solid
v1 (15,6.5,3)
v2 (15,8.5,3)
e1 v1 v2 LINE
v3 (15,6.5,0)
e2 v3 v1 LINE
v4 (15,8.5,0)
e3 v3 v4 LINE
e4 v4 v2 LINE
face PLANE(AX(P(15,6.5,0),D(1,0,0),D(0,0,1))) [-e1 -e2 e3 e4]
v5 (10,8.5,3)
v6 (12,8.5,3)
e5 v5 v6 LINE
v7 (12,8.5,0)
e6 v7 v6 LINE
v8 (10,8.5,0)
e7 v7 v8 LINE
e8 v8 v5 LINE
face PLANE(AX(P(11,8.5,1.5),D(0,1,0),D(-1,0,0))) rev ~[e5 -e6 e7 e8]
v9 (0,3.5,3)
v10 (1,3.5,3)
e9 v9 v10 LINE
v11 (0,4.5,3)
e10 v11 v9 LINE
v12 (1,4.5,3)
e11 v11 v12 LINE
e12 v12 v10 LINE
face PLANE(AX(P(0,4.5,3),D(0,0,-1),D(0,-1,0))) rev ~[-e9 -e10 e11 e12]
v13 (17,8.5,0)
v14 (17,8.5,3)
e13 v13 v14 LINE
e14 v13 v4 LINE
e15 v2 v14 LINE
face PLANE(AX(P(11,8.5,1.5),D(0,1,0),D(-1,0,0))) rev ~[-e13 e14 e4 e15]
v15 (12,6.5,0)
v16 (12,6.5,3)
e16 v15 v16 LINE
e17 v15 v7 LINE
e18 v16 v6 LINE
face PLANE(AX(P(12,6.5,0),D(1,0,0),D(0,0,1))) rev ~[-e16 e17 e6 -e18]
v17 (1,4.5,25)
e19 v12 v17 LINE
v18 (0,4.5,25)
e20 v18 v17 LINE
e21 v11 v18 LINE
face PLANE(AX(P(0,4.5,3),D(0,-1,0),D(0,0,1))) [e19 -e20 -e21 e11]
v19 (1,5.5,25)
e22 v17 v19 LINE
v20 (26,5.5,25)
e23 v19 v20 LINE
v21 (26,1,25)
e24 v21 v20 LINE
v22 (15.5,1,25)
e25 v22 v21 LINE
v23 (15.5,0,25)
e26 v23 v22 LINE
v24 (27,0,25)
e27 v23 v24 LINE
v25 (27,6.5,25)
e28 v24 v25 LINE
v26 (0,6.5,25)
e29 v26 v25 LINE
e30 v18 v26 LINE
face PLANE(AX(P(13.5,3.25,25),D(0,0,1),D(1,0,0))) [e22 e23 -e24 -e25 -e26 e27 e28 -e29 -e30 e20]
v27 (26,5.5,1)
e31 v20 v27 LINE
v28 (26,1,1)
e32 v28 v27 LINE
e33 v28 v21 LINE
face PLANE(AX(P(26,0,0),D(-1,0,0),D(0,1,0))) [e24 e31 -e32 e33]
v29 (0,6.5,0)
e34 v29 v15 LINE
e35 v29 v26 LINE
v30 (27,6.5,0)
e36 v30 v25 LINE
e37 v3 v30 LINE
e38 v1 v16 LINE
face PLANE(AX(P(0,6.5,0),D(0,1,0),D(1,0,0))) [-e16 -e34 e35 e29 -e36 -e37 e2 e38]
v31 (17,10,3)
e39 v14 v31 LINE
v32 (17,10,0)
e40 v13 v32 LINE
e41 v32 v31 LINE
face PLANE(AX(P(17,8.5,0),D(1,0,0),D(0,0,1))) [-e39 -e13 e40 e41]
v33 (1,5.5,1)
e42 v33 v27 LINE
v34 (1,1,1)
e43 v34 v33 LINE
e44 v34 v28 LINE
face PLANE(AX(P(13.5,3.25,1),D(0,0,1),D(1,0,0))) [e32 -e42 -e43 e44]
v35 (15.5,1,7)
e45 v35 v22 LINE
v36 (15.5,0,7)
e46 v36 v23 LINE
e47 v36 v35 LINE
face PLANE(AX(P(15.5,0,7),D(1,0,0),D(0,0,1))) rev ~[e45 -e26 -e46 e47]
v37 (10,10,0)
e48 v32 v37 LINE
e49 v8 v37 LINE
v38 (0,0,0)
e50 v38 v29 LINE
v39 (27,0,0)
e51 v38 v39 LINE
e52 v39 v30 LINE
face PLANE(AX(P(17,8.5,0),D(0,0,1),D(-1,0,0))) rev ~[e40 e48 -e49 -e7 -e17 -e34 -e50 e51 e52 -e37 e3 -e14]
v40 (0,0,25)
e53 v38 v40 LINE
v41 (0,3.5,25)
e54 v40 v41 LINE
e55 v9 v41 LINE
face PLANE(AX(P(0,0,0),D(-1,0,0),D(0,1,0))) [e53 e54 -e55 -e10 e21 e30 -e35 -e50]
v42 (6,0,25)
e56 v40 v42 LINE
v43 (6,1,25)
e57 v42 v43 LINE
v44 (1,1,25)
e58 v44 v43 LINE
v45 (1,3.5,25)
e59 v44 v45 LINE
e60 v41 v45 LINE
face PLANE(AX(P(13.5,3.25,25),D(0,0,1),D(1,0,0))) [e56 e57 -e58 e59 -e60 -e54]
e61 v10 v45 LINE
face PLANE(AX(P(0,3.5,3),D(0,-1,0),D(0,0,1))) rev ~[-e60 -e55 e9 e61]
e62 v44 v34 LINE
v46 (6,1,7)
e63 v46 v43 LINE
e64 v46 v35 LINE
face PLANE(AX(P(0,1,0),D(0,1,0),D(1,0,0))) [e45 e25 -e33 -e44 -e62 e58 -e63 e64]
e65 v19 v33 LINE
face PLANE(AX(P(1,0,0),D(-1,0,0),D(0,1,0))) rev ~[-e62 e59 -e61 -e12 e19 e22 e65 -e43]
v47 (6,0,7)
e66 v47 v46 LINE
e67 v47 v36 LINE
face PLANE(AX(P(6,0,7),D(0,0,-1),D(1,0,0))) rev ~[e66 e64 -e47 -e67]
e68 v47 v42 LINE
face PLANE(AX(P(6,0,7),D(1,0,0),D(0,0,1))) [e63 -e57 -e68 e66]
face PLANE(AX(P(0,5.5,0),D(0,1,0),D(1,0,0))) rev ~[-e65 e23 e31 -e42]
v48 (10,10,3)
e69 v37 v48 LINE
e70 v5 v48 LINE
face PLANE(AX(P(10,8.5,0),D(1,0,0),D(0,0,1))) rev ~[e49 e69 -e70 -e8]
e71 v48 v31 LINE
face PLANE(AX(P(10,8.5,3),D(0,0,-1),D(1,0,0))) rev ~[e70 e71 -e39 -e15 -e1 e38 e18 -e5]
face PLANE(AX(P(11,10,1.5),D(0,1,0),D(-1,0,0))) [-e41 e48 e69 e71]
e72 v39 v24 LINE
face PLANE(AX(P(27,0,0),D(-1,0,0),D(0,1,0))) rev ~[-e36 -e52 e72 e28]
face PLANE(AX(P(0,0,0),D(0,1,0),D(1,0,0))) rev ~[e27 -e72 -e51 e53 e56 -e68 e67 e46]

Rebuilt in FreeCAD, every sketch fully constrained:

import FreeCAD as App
import Part
import Sketcher
Q = App.Units.Quantity


def faces_at(feature, points):
    """Names of the faces that lie closest to the given points."""
    faces = feature.Shape.Faces
    near = lambda p: min(range(len(faces)), key=lambda i: faces[i].distToShape(Part.Vertex(*p))[0])
    return sorted({f"Face{near(p) + 1}" for p in points})

doc = App.newDocument("Part")
params = doc.addObject("Spreadsheet::Sheet", "Params")
for row, (alias, value) in enumerate([
    ("sketch1_width", "27 mm"),
    ("sketch1_height", "6.5 mm"),
    ("pad1_length", "25 mm"),
    ("thickness_wall", "1 mm"),
    ("sketch2_height", "18 mm"),
    ("sketch2_width", "9.5 mm"),
    ("pocket1_length", "1 mm"),
    ("sketch3_width", "1 mm"),
    ("sketch3_height", "22 mm"),
    ("pocket2_length", "1 mm"),
    ("sketch4_width", "3 mm"),
    ("pad2_length", "2 mm"),
    ("sketch5_width", "7 mm"),
    ("sketch5_height", "3 mm"),
    ("pad3_length", "1.5 mm"),
], start=1):
    params.set(f"A{row}", alias)
    params.set(f"B{row}", "=" + value)
    params.setAlias(f"B{row}", alias)

body = doc.addObject("PartDesign::Body", "Body")

# Sketch on XY plane
sketch1 = doc.addObject("Sketcher::SketchObject", "Sketch")
body.addObject(sketch1)
sketch1.AttachmentSupport = (doc.XY_Plane, [""])
sketch1.MapMode = "FlatFace"
sketch1.addGeometry(Part.LineSegment(App.Vector(0, 6, 0), App.Vector(0, 0, 0)), False)
sketch1.addGeometry(Part.LineSegment(App.Vector(0, 0, 0), App.Vector(27, 0, 0)), False)
sketch1.addGeometry(Part.LineSegment(App.Vector(27, 0, 0), App.Vector(27, 6, 0)), False)
sketch1.addGeometry(Part.LineSegment(App.Vector(27, 6, 0), App.Vector(0, 6, 0)), False)
sketch1.addConstraint(Sketcher.Constraint("Coincident", 0, 2, 1, 1))
sketch1.addConstraint(Sketcher.Constraint("Coincident", 1, 2, 2, 1))
sketch1.addConstraint(Sketcher.Constraint("Coincident", 2, 2, 3, 1))
sketch1.addConstraint(Sketcher.Constraint("Coincident", 3, 2, 0, 1))
sketch1.addConstraint(Sketcher.Constraint("Vertical", 0))
sketch1.addConstraint(Sketcher.Constraint("Horizontal", 1))
sketch1.addConstraint(Sketcher.Constraint("Vertical", 2))
sketch1.addConstraint(Sketcher.Constraint("Horizontal", 3))
sketch1.addConstraint(Sketcher.Constraint("Coincident", 0, 2, -1, 1))
sketch1.addConstraint(Sketcher.Constraint("DistanceX", 1, 1, 1, 2, Q("27 mm")))
sketch1.addConstraint(Sketcher.Constraint("DistanceY", 0, 2, 0, 1, Q("6.5 mm")))
sketch1.setExpression("Constraints[9]", "Params.sketch1_width")
sketch1.setExpression("Constraints[10]", "Params.sketch1_height")
pad1 = doc.addObject("PartDesign::Pad", "Pad")
body.addObject(pad1)
pad1.Profile = sketch1
pad1.setExpression("Length", "Params.pad1_length")
doc.recompute()

thickness = doc.addObject("PartDesign::Thickness", "Thickness")
body.addObject(thickness)
thickness.Base = (pad1, faces_at(pad1, [(13.5, 3.25, 25)]))
thickness.setExpression("Value", "Params.thickness_wall")
thickness.Reversed = True
thickness.Join = "Arc"

# Sketch on XZ plane
sketch2 = doc.addObject("Sketcher::SketchObject", "Sketch001")
body.addObject(sketch2)
sketch2.AttachmentSupport = (doc.XZ_Plane, [""])
sketch2.MapMode = "FlatFace"
sketch2.addGeometry(Part.LineSegment(App.Vector(6, 25, 0), App.Vector(6, 7, 0)), False)
sketch2.addGeometry(Part.LineSegment(App.Vector(6, 7, 0), App.Vector(16, 7, 0)), False)
sketch2.addGeometry(Part.LineSegment(App.Vector(16, 7, 0), App.Vector(16, 25, 0)), False)
sketch2.addGeometry(Part.LineSegment(App.Vector(16, 25, 0), App.Vector(6, 25, 0)), False)
sketch2.addConstraint(Sketcher.Constraint("Coincident", 0, 2, 1, 1))
sketch2.addConstraint(Sketcher.Constraint("Coincident", 1, 2, 2, 1))
sketch2.addConstraint(Sketcher.Constraint("Coincident", 2, 2, 3, 1))
sketch2.addConstraint(Sketcher.Constraint("Coincident", 3, 2, 0, 1))
sketch2.addConstraint(Sketcher.Constraint("Vertical", 0))
sketch2.addConstraint(Sketcher.Constraint("Horizontal", 1))
sketch2.addConstraint(Sketcher.Constraint("Vertical", 2))
sketch2.addConstraint(Sketcher.Constraint("Horizontal", 3))
sketch2.addConstraint(Sketcher.Constraint("DistanceY", 0, 2, 0, 1, Q("18 mm")))
sketch2.addConstraint(Sketcher.Constraint("DistanceX", 1, 1, 1, 2, Q("9.5 mm")))
sketch2.addConstraint(Sketcher.Constraint("DistanceX", -1, 1, 0, 2, Q("6 mm")))
sketch2.addConstraint(Sketcher.Constraint("DistanceY", -1, 1, 0, 2, Q("7 mm")))
sketch2.setExpression("Constraints[8]", "Params.sketch2_height")
sketch2.setExpression("Constraints[9]", "Params.sketch2_width")
pocket1 = doc.addObject("PartDesign::Pocket", "Pocket")
body.addObject(pocket1)
pocket1.Profile = sketch2
pocket1.setExpression("Length", "Params.pocket1_length")

# Sketch on YZ plane
sketch3 = doc.addObject("Sketcher::SketchObject", "Sketch002")
body.addObject(sketch3)
sketch3.AttachmentSupport = (doc.YZ_Plane, [""])
sketch3.MapMode = "FlatFace"
sketch3.addGeometry(Part.LineSegment(App.Vector(4.5, 25, 0), App.Vector(4.5, 3, 0)), False)
sketch3.addGeometry(Part.LineSegment(App.Vector(4.5, 3, 0), App.Vector(3.5, 3, 0)), False)
sketch3.addGeometry(Part.LineSegment(App.Vector(3.5, 3, 0), App.Vector(3.5, 25, 0)), False)
sketch3.addGeometry(Part.LineSegment(App.Vector(3.5, 25, 0), App.Vector(4.5, 25, 0)), False)
sketch3.addConstraint(Sketcher.Constraint("Coincident", 0, 2, 1, 1))
sketch3.addConstraint(Sketcher.Constraint("Coincident", 1, 2, 2, 1))
sketch3.addConstraint(Sketcher.Constraint("Coincident", 2, 2, 3, 1))
sketch3.addConstraint(Sketcher.Constraint("Coincident", 3, 2, 0, 1))
sketch3.addConstraint(Sketcher.Constraint("Vertical", 0))
sketch3.addConstraint(Sketcher.Constraint("Horizontal", 1))
sketch3.addConstraint(Sketcher.Constraint("Vertical", 2))
sketch3.addConstraint(Sketcher.Constraint("Horizontal", 3))
sketch3.addConstraint(Sketcher.Constraint("DistanceX", 1, 2, 1, 1, Q("1 mm")))
sketch3.addConstraint(Sketcher.Constraint("DistanceY", 0, 2, 0, 1, Q("22 mm")))
sketch3.addConstraint(Sketcher.Constraint("DistanceY", -1, 1, 0, 2, Q("3 mm")))
sketch3.addConstraint(Sketcher.Constraint("DistanceX", -1, 1, 0, 2, Q("4.5 mm")))
sketch3.setExpression("Constraints[8]", "Params.sketch3_width")
sketch3.setExpression("Constraints[9]", "Params.sketch3_height")
pocket2 = doc.addObject("PartDesign::Pocket", "Pocket001")
body.addObject(pocket2)
pocket2.Profile = sketch3
pocket2.setExpression("Length", "Params.pocket2_length")
pocket2.Reversed = True

# Sketch on XZ plane
sketch4 = doc.addObject("Sketcher::SketchObject", "Sketch003")
body.addObject(sketch4)
sketch4.AttachmentSupport = (doc.XZ_Plane, [""])
sketch4.MapMode = "FlatFace"
sketch4.AttachmentOffset = App.Placement(App.Vector(0, 0, -6.5), App.Rotation())
sketch4.addGeometry(Part.LineSegment(App.Vector(15, 3, 0), App.Vector(15, 0, 0)), False)
sketch4.addGeometry(Part.LineSegment(App.Vector(15, 0, 0), App.Vector(12, 0, 0)), False)
sketch4.addGeometry(Part.LineSegment(App.Vector(12, 0, 0), App.Vector(12, 3, 0)), False)
sketch4.addGeometry(Part.LineSegment(App.Vector(12, 3, 0), App.Vector(15, 3, 0)), False)
sketch4.addConstraint(Sketcher.Constraint("Coincident", 0, 2, 1, 1))
sketch4.addConstraint(Sketcher.Constraint("Coincident", 1, 2, 2, 1))
sketch4.addConstraint(Sketcher.Constraint("Coincident", 2, 2, 3, 1))
sketch4.addConstraint(Sketcher.Constraint("Coincident", 3, 2, 0, 1))
sketch4.addConstraint(Sketcher.Constraint("Vertical", 0))
sketch4.addConstraint(Sketcher.Constraint("Horizontal", 1))
sketch4.addConstraint(Sketcher.Constraint("Vertical", 2))
sketch4.addConstraint(Sketcher.Constraint("Horizontal", 3))
sketch4.addConstraint(Sketcher.Constraint("PointOnObject", 0, 2, -1))
sketch4.addConstraint(Sketcher.Constraint("Equal", 3, 0))
sketch4.addConstraint(Sketcher.Constraint("DistanceX", 1, 2, 1, 1, Q("3 mm")))
sketch4.addConstraint(Sketcher.Constraint("DistanceX", -1, 1, 0, 2, Q("15 mm")))
sketch4.setExpression("Constraints[10]", "Params.sketch4_width")
pad2 = doc.addObject("PartDesign::Pad", "Pad001")
body.addObject(pad2)
pad2.Profile = sketch4
pad2.setExpression("Length", "Params.pad2_length")
pad2.Reversed = True

# Sketch on XZ plane
sketch5 = doc.addObject("Sketcher::SketchObject", "Sketch004")
body.addObject(sketch5)
sketch5.AttachmentSupport = (doc.XZ_Plane, [""])
sketch5.MapMode = "FlatFace"
sketch5.AttachmentOffset = App.Placement(App.Vector(0, 0, -8.5), App.Rotation())
sketch5.addGeometry(Part.LineSegment(App.Vector(10, 0, 0), App.Vector(10, 3, 0)), False)
sketch5.addGeometry(Part.LineSegment(App.Vector(10, 3, 0), App.Vector(17, 3, 0)), False)
sketch5.addGeometry(Part.LineSegment(App.Vector(17, 3, 0), App.Vector(17, 0, 0)), False)
sketch5.addGeometry(Part.LineSegment(App.Vector(17, 0, 0), App.Vector(10, 0, 0)), False)
sketch5.addConstraint(Sketcher.Constraint("Coincident", 0, 2, 1, 1))
sketch5.addConstraint(Sketcher.Constraint("Coincident", 1, 2, 2, 1))
sketch5.addConstraint(Sketcher.Constraint("Coincident", 2, 2, 3, 1))
sketch5.addConstraint(Sketcher.Constraint("Coincident", 3, 2, 0, 1))
sketch5.addConstraint(Sketcher.Constraint("Vertical", 0))
sketch5.addConstraint(Sketcher.Constraint("Horizontal", 1))
sketch5.addConstraint(Sketcher.Constraint("Vertical", 2))
sketch5.addConstraint(Sketcher.Constraint("Horizontal", 3))
sketch5.addConstraint(Sketcher.Constraint("PointOnObject", 2, 2, -1))
sketch5.addConstraint(Sketcher.Constraint("DistanceX", 1, 1, 1, 2, Q("7 mm")))
sketch5.addConstraint(Sketcher.Constraint("DistanceY", 0, 1, 0, 2, Q("3 mm")))
sketch5.addConstraint(Sketcher.Constraint("DistanceX", -1, 1, 0, 2, Q("10 mm")))
sketch5.setExpression("Constraints[9]", "Params.sketch5_width")
sketch5.setExpression("Constraints[10]", "Params.sketch5_height")
pad3 = doc.addObject("PartDesign::Pad", "Pad002")
body.addObject(pad3)
pad3.Profile = sketch5
pad3.setExpression("Length", "Params.pad3_length")
pad3.Reversed = True

doc.recompute()
